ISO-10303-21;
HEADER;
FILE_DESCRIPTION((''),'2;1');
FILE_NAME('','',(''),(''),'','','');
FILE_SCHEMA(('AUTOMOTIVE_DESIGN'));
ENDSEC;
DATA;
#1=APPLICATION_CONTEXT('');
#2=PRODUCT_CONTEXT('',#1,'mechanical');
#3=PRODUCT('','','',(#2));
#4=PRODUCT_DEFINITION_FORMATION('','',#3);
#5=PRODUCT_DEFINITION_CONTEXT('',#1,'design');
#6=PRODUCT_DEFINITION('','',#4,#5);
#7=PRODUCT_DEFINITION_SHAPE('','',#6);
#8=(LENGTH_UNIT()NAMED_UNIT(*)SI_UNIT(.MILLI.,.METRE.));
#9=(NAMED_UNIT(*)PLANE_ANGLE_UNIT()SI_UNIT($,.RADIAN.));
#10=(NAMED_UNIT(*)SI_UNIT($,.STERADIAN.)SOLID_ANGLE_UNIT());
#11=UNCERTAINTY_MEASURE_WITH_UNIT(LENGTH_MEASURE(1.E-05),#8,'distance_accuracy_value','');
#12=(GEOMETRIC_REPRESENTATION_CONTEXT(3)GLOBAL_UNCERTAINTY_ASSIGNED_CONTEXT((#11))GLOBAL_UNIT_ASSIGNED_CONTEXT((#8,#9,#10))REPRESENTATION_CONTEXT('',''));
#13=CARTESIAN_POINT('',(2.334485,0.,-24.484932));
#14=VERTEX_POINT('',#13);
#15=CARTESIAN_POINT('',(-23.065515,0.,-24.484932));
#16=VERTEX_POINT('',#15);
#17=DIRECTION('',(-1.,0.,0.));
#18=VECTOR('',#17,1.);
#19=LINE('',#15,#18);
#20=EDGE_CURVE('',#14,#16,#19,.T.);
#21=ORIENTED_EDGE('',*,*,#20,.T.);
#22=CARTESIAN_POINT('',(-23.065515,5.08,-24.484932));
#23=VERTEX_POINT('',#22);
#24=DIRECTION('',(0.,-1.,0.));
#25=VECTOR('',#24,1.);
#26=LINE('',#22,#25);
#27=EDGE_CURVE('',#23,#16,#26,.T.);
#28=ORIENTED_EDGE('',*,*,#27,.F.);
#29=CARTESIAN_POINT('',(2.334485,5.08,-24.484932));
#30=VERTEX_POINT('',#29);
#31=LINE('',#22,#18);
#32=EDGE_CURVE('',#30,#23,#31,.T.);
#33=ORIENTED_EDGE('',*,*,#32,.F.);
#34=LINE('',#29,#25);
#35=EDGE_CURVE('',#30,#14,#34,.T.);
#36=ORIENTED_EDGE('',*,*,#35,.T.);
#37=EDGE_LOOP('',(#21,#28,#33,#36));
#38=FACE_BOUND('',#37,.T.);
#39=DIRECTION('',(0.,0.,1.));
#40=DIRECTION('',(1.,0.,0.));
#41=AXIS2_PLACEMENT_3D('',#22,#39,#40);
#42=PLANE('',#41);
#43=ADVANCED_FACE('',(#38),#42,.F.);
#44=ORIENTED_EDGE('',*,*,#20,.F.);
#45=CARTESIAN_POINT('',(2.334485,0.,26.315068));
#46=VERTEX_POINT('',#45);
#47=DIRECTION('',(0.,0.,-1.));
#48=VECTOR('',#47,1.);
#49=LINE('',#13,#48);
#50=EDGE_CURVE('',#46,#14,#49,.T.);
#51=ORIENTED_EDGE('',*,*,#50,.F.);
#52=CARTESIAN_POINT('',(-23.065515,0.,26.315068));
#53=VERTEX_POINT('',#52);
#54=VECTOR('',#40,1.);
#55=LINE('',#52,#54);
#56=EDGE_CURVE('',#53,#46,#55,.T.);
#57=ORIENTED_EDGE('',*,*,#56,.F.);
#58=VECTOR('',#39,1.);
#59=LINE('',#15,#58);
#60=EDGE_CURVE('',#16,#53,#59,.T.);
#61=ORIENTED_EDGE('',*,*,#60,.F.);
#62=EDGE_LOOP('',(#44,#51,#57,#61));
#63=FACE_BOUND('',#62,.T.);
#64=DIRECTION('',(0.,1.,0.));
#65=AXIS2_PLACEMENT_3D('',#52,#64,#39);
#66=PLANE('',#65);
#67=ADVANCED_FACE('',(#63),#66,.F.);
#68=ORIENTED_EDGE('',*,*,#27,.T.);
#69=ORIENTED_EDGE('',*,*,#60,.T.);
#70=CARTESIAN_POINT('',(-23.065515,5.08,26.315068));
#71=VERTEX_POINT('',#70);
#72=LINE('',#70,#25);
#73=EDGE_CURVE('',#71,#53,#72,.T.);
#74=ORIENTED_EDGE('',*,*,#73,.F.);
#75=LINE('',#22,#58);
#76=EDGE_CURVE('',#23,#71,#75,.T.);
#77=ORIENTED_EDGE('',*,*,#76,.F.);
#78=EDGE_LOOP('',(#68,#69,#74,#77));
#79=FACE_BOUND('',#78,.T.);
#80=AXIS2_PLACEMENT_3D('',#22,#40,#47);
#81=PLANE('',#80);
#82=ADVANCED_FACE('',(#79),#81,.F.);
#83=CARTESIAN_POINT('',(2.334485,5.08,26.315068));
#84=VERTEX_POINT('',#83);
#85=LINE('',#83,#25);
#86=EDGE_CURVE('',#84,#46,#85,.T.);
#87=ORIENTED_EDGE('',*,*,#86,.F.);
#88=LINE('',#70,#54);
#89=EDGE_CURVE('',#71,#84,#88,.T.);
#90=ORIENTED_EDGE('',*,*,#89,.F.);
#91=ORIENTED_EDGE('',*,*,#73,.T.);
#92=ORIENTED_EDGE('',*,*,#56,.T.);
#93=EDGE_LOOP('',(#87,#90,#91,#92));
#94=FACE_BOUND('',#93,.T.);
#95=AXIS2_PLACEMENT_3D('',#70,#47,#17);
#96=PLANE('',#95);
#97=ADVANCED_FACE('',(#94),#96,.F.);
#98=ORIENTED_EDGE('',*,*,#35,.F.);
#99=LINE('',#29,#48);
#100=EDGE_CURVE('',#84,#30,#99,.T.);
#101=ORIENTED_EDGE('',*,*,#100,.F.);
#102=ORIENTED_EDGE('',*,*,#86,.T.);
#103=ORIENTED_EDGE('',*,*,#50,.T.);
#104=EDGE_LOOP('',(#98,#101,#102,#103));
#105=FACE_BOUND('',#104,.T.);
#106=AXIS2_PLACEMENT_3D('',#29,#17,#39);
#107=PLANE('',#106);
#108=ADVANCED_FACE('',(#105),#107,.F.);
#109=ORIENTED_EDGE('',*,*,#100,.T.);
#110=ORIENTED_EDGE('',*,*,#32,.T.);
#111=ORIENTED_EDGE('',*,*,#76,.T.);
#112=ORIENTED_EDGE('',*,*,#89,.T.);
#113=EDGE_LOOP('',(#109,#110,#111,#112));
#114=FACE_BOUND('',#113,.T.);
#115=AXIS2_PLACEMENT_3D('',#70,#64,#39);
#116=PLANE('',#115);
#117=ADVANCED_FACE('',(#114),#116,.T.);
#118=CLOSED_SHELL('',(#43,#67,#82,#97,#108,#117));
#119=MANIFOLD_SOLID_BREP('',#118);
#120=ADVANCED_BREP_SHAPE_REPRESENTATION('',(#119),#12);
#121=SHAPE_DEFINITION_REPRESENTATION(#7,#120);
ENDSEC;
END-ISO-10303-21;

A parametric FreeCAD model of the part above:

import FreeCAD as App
import Part
import Sketcher

V = App.Vector
Q = App.Units.Quantity

doc = App.newDocument("Part")
body = doc.addObject("PartDesign::Body", "Body")

# Sketch on XZ plane
sketch1 = body.newObject("Sketcher::SketchObject", "Sketch")
sketch1.AttachmentSupport = (doc.getObject("XZ_Plane"), [""])
sketch1.MapMode = "FlatFace"
sketch1.addGeometry([
    Part.LineSegment(V(-23.065515, -24.484932, 0), V(-23.065515, 26.315068, 0)),
    Part.LineSegment(V(-23.065515, 26.315068, 0), V(2.334485, 26.315068, 0)),
    Part.LineSegment(V(2.334485, 26.315068, 0), V(2.334485, -24.484932, 0)),
    Part.LineSegment(V(2.334485, -24.484932, 0), V(-23.065515, -24.484932, 0)),
], False)
sketch1.addConstraint([
    Sketcher.Constraint("Coincident", 0, 2, 1, 1),
    Sketcher.Constraint("Coincident", 1, 2, 2, 1),
    Sketcher.Constraint("Coincident", 2, 2, 3, 1),
    Sketcher.Constraint("Coincident", 3, 2, 0, 1),
    Sketcher.Constraint("Vertical", 0),
    Sketcher.Constraint("Horizontal", 1),
    Sketcher.Constraint("Vertical", 2),
    Sketcher.Constraint("Horizontal", 3),
    Sketcher.Constraint("DistanceX", 1, 1, 1, 2, Q("1 in")),
    Sketcher.Constraint("DistanceY", 0, 1, 0, 2, Q("2 in")),
    Sketcher.Constraint("DistanceY", -1, 1, 0, 2, Q("26.315068 mm")),
    Sketcher.Constraint("DistanceX", 0, 2, -1, 1, Q("23.065515 mm")),
])
pad1 = body.newObject("PartDesign::Pad", "Pad")
pad1.Profile = sketch1
pad1.Length = Q("0.2 in")
pad1.Reversed = True

doc.recompute()
